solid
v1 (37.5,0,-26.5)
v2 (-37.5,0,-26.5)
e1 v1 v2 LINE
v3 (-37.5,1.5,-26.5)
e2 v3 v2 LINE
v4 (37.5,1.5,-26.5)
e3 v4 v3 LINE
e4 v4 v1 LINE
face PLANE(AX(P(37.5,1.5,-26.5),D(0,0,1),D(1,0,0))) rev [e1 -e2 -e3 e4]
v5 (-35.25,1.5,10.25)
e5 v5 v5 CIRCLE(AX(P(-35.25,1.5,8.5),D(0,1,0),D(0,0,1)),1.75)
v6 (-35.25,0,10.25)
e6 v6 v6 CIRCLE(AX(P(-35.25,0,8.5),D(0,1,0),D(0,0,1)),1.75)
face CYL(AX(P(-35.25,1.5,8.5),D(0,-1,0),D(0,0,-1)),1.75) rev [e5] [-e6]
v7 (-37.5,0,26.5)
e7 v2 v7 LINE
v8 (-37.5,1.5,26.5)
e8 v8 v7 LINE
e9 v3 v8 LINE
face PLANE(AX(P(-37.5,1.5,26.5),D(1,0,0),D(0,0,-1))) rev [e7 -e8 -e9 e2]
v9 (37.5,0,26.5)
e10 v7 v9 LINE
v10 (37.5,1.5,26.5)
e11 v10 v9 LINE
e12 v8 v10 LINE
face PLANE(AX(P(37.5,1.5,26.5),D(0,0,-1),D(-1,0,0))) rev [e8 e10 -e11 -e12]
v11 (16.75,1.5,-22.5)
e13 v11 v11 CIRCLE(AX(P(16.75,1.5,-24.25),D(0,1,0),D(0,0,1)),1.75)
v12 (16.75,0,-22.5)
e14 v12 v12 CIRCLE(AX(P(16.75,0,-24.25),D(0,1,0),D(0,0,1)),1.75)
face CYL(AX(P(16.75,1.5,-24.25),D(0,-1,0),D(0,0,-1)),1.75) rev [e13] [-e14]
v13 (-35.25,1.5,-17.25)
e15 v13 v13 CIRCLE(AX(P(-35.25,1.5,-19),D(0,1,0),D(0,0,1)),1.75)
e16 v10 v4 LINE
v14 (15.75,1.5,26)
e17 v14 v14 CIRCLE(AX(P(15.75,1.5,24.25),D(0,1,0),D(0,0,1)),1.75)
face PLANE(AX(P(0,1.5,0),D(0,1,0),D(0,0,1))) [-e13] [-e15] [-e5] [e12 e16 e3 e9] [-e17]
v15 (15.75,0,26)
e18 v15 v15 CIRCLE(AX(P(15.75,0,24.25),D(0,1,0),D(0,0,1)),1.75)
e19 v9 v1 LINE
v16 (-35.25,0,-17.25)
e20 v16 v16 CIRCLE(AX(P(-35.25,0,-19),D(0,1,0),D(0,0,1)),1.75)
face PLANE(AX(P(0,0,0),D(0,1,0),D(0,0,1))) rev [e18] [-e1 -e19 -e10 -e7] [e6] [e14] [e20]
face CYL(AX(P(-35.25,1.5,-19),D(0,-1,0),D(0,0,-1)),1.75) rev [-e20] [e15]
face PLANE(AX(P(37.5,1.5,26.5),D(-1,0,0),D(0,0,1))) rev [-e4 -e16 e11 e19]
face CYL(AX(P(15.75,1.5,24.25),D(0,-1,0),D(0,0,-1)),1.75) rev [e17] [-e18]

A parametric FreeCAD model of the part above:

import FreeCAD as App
import Part
import Sketcher
Q = App.Units.Quantity


def add_polygon(sketch, points):
    """Adds a closed chain of lines whose ends are joined by coincident constraints."""
    first, n = sketch.GeometryCount, len(points)
    for a, b in zip(points, points[1:] + points[:1]):
        sketch.addGeometry(Part.LineSegment(App.Vector(*a, 0), App.Vector(*b, 0)), False)
    for i in range(n):
        sketch.addConstraint(Sketcher.Constraint("Coincident", first + i, 2, first + (i + 1) % n, 1))

doc = App.newDocument("Part")
body = doc.addObject("PartDesign::Body", "Body")

# Sketch on XZ plane
sketch1 = body.newObject("Sketcher::SketchObject", "Sketch")
sketch1.AttachmentSupport = (doc.getObject("XZ_Plane"), [""])
sketch1.MapMode = "FlatFace"
add_polygon(sketch1, [(-37.5, -26.5), (-37.5, 26.5), (37.5, 26.5), (37.5, -26.5)])  # lines 0-3
sketch1.addGeometry(Part.Circle(App.Vector(-35.2, 8.5, 0), App.Vector(0, 0, 1), 1.8), False)  # 4
sketch1.addGeometry(Part.Circle(App.Vector(15.8, 24.2, 0), App.Vector(0, 0, 1), 1.8), False)  # 5
sketch1.addGeometry(Part.Circle(App.Vector(-35.2, -19, 0), App.Vector(0, 0, 1), 1.8), False)  # 6
sketch1.addGeometry(Part.Circle(App.Vector(16.8, -24.2, 0), App.Vector(0, 0, 1), 1.8), False)  # 7
sketch1.addConstraint([
    Sketcher.Constraint("Vertical", 0),
    Sketcher.Constraint("Horizontal", 1),
    Sketcher.Constraint("Vertical", 2),
    Sketcher.Constraint("Horizontal", 3),
    Sketcher.Constraint("Equal", 4, 5),
    Sketcher.Constraint("Equal", 5, 6),
    Sketcher.Constraint("Equal", 6, 7),
    Sketcher.Constraint("Symmetric", 0, 2, 2, 2, -1, 1),
    Sketcher.Constraint("Vertical", 4, 3, 6, 3),
    Sketcher.Constraint("Diameter", 4, Q("3.5 mm")),
    Sketcher.Constraint("DistanceX", 1, 1, 1, 2, Q("75 mm")),
    Sketcher.Constraint("DistanceY", 0, 1, 0, 2, Q("53 mm")),
    Sketcher.Constraint("DistanceY", 6, 3, -1, 1, Q("19 mm")),
    Sketcher.Constraint("DistanceX", 4, 3, 5, 3, Q("51 mm")),
    Sketcher.Constraint("DistanceX", 5, 3, 7, 3, Q("1 mm")),
    Sketcher.Constraint("DistanceY", 4, 3, 0, 2, Q("18 mm")),
    Sketcher.Constraint("DistanceY", 7, 3, 5, 3, Q("48.5 mm")),
    Sketcher.Constraint("DistanceX", 4, 3, -1, 1, Q("35.25 mm")),
    Sketcher.Constraint("DistanceY", -1, 1, 5, 3, Q("24.25 mm")),
])
pad1 = body.newObject("PartDesign::Pad", "Pad")
pad1.Profile = sketch1
pad1.Length = 1.5
pad1.Reversed = True

doc.recompute()
